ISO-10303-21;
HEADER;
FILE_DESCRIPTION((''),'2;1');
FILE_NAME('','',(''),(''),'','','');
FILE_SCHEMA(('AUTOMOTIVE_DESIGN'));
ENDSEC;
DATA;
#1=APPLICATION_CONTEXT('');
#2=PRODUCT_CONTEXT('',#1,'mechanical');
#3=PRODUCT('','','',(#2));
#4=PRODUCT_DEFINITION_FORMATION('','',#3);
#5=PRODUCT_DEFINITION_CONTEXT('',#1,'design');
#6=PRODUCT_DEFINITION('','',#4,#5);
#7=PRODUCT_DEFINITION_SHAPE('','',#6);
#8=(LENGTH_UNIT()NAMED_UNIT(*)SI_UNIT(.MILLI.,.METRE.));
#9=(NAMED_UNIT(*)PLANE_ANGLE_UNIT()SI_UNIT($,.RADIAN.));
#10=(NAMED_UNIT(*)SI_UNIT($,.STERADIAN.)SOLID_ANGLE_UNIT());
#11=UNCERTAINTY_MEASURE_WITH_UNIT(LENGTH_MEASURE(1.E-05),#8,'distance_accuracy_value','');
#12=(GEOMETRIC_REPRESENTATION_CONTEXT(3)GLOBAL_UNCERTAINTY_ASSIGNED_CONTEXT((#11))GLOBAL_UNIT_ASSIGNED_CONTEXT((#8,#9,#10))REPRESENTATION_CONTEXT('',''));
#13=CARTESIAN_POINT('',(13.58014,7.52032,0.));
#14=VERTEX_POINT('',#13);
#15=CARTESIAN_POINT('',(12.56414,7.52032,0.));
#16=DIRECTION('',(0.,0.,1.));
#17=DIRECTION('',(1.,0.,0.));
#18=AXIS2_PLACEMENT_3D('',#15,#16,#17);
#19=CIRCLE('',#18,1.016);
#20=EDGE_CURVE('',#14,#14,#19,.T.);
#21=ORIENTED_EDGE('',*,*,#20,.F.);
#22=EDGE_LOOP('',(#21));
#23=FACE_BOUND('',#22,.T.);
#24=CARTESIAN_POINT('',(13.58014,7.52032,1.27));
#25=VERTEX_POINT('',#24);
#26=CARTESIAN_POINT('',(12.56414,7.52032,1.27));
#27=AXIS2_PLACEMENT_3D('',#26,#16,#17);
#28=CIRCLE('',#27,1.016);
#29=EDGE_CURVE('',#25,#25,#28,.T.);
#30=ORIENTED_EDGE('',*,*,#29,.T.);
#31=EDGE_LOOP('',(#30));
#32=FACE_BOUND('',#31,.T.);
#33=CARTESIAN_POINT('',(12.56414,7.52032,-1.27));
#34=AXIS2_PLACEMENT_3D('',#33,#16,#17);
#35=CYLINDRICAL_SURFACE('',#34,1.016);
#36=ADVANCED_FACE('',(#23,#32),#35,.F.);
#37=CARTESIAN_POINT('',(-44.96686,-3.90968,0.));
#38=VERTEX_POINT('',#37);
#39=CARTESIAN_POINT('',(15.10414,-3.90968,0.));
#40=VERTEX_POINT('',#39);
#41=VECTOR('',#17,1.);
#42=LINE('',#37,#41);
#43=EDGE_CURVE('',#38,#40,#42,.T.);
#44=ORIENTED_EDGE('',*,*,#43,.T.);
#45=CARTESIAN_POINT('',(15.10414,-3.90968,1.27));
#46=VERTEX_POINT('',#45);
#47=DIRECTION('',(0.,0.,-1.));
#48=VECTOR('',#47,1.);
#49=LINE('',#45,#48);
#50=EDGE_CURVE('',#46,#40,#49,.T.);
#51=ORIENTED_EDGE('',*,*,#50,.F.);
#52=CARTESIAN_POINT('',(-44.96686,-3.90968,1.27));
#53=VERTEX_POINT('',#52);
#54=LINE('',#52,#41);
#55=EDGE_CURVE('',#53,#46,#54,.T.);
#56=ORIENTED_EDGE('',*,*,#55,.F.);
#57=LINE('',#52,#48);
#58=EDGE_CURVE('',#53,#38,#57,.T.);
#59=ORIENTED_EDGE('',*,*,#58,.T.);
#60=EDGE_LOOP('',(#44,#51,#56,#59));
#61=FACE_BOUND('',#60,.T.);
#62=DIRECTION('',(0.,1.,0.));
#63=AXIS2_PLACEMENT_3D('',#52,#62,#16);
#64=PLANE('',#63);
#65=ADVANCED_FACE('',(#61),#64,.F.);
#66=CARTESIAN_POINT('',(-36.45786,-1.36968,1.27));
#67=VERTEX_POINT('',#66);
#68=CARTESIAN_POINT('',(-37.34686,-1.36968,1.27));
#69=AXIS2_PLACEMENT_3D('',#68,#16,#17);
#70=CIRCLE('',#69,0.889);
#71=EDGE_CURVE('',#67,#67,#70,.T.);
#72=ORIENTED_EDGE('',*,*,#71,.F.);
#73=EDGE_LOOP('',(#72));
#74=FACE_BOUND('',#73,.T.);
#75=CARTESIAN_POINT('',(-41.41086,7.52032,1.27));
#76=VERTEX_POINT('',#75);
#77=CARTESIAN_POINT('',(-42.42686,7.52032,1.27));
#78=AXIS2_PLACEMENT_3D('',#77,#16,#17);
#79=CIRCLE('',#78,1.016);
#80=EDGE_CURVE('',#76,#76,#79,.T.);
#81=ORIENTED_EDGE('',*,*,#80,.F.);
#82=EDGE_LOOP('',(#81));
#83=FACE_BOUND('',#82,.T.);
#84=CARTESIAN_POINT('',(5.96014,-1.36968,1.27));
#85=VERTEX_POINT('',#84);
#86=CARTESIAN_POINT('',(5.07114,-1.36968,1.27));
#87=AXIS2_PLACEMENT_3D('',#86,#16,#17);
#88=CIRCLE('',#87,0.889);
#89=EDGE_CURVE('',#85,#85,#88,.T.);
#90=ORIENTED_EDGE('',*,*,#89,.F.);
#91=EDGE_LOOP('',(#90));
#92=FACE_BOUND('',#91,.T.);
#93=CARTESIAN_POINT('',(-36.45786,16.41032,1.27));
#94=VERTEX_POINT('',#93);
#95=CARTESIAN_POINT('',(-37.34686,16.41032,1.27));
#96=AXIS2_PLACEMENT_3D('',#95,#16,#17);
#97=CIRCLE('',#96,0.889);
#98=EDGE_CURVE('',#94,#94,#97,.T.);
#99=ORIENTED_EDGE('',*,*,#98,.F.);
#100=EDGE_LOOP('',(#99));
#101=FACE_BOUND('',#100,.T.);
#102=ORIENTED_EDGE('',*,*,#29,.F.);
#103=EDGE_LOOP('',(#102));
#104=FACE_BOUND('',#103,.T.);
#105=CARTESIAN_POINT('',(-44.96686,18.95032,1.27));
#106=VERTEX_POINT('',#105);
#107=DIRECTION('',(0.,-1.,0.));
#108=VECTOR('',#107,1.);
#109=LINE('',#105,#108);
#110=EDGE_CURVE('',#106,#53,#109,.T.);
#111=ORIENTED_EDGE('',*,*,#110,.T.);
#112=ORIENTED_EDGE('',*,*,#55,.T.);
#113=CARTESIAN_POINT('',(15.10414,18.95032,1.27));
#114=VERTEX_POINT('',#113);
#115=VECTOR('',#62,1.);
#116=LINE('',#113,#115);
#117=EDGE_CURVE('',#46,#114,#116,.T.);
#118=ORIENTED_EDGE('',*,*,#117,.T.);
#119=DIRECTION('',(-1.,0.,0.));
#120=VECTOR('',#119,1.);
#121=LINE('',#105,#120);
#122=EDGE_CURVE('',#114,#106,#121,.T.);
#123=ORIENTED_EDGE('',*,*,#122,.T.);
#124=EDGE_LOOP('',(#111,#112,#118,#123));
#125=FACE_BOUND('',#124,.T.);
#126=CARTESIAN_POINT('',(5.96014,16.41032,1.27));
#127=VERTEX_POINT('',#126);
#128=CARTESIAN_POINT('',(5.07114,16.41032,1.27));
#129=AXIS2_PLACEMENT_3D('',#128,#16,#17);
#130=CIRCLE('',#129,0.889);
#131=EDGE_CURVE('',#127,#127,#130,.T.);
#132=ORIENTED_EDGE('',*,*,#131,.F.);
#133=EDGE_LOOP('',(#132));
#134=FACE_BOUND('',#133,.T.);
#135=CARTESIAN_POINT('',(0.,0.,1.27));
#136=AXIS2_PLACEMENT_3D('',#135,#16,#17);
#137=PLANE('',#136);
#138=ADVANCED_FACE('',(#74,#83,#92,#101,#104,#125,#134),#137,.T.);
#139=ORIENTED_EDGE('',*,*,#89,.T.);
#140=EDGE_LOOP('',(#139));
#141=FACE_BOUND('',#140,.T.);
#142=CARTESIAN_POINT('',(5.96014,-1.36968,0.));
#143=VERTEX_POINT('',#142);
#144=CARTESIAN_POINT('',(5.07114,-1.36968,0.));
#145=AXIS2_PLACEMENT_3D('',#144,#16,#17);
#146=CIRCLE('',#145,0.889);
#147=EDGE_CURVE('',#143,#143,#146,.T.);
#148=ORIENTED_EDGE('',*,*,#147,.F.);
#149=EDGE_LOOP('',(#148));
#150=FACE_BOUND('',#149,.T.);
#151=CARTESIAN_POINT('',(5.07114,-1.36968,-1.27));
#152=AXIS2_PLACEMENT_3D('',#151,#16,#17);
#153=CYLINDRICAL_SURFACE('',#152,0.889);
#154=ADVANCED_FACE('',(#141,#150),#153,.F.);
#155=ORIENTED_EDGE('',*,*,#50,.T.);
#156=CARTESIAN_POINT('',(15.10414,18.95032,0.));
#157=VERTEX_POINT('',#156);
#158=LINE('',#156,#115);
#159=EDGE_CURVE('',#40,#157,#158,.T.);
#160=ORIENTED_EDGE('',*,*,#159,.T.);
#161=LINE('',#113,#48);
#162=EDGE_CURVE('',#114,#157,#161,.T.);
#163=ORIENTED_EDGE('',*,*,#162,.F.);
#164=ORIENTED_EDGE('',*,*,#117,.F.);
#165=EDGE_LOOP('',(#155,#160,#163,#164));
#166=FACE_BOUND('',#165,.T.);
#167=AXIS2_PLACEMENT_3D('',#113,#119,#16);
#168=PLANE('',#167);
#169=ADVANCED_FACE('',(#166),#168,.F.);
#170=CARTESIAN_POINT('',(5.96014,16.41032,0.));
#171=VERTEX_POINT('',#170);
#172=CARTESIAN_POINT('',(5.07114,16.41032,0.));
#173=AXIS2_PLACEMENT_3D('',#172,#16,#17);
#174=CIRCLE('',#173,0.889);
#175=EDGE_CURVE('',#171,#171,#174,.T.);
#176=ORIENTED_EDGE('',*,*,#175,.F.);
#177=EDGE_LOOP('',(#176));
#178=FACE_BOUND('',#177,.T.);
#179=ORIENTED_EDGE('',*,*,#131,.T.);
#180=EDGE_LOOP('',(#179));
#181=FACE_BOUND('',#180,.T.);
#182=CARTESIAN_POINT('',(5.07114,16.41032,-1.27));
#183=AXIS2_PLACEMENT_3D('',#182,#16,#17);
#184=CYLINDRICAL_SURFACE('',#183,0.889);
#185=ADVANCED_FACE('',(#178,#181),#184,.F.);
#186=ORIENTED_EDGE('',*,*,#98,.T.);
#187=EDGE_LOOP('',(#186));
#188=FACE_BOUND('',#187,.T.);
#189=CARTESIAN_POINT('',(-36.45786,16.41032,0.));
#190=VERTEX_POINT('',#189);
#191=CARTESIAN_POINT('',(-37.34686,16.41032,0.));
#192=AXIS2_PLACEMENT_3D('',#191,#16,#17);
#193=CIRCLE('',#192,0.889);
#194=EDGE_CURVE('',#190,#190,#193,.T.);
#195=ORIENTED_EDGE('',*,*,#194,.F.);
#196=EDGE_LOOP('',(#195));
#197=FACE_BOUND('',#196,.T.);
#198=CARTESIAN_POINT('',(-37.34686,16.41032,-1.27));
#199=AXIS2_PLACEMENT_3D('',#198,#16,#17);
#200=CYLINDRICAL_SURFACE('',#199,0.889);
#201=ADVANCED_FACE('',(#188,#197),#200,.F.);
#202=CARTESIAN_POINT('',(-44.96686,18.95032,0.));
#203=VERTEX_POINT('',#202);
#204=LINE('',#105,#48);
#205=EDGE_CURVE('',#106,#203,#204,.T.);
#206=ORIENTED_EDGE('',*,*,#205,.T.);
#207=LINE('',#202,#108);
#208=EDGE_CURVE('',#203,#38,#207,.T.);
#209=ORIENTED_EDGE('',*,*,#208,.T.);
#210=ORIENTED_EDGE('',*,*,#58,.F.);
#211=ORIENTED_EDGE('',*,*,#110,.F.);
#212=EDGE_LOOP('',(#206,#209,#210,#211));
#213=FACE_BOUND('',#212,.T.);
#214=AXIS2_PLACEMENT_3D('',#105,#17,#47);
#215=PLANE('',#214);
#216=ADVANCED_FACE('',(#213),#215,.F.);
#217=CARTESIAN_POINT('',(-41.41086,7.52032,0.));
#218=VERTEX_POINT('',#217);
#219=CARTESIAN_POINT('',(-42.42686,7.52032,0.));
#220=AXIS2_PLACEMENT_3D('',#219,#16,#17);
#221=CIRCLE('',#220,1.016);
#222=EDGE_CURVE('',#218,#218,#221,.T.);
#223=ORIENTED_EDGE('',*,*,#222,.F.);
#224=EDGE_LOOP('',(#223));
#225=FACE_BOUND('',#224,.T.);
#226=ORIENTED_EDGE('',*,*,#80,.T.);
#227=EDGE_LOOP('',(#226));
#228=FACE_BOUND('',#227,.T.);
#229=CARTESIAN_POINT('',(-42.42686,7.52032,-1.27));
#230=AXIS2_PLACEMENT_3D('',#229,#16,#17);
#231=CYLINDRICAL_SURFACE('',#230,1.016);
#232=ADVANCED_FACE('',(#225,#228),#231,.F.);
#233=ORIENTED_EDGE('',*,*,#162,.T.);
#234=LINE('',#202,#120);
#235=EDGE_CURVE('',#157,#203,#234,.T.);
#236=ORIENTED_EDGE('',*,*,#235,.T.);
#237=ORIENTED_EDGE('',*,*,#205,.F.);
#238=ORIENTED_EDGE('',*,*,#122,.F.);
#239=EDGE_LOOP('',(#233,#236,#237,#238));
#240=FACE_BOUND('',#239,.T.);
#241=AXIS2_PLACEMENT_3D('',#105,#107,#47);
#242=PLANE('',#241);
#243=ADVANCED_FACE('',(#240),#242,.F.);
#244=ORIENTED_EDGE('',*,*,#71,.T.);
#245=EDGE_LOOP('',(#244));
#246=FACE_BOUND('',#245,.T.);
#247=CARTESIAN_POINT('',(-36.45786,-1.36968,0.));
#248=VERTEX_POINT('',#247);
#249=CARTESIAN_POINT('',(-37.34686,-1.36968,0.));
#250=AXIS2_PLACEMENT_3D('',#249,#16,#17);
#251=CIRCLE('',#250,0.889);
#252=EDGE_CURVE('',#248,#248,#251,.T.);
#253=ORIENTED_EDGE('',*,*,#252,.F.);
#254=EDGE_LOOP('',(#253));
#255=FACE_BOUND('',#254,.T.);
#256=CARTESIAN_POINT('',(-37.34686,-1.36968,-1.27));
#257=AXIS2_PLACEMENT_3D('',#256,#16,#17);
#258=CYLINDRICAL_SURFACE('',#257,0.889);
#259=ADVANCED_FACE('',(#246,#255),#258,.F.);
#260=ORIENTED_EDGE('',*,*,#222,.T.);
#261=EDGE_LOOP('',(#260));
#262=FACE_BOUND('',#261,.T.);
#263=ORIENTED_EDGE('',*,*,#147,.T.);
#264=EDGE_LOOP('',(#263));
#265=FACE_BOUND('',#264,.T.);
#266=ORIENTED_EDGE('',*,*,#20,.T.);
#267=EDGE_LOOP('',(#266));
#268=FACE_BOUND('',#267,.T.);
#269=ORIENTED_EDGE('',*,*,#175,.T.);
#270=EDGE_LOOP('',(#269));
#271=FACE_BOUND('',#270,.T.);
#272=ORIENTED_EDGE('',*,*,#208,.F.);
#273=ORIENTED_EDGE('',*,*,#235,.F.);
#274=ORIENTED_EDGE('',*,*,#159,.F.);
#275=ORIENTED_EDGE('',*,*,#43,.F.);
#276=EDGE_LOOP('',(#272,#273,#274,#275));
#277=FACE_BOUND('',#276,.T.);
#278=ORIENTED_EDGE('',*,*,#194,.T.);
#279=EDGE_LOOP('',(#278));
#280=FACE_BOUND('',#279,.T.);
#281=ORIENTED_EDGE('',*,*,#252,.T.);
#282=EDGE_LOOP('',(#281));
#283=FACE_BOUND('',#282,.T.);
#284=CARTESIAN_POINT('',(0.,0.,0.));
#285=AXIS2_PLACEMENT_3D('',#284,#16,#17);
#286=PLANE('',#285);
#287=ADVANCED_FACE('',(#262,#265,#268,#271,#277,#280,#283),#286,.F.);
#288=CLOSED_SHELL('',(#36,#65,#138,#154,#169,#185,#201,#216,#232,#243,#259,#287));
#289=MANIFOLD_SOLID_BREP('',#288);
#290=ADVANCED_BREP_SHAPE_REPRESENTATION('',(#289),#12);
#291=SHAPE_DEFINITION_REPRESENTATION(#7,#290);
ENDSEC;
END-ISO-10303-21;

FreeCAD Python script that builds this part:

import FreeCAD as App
import Part
import Sketcher

V = App.Vector
Q = App.Units.Quantity

doc = App.newDocument("Part")
params = doc.addObject("Spreadsheet::Sheet", "Params")
for row, (alias, value) in enumerate([
    ("sketch1_height", "0.9 in"),
    ("sketch1_width", "2.365 in"),
    ("pad1_length", "0.05 in"),
    ("sketch2_diameter", "0.07 in"),
    ("sketch2_diameter2", "0.08 in"),
    ("pocket1_length", "0.1 in"),
], start=1):
    params.set(f"A{row}", alias)
    params.set(f"B{row}", "=" + value)
    params.setAlias(f"B{row}", alias)

body = doc.addObject("PartDesign::Body", "Body")

sketch1 = body.newObject("Sketcher::SketchObject", "Sketch")
sketch1.AttachmentSupport = (doc.getObject("XY_Plane"), [""])
sketch1.MapMode = "FlatFace"
sketch1.addGeometry(Part.LineSegment(V(-45, 19, 0), V(-45, -4, 0)), False)
sketch1.addGeometry(Part.LineSegment(V(-45, -4, 0), V(15, -4, 0)), False)
sketch1.addGeometry(Part.LineSegment(V(15, -4, 0), V(15, 19, 0)), False)
sketch1.addGeometry(Part.LineSegment(V(15, 19, 0), V(-45, 19, 0)), False)
sketch1.addConstraint(Sketcher.Constraint("Coincident", 0, 2, 1, 1))
sketch1.addConstraint(Sketcher.Constraint("Coincident", 1, 2, 2, 1))
sketch1.addConstraint(Sketcher.Constraint("Coincident", 2, 2, 3, 1))
sketch1.addConstraint(Sketcher.Constraint("Coincident", 3, 2, 0, 1))
sketch1.addConstraint(Sketcher.Constraint("Vertical", 0))
sketch1.addConstraint(Sketcher.Constraint("Horizontal", 1))
sketch1.addConstraint(Sketcher.Constraint("Vertical", 2))
sketch1.addConstraint(Sketcher.Constraint("Horizontal", 3))
sketch1.addConstraint(Sketcher.Constraint("DistanceY", 0, 2, 0, 1, Q("0.9 in")))
sketch1.addConstraint(Sketcher.Constraint("DistanceX", 1, 1, 1, 2, Q("2.365 in")))
sketch1.addConstraint(Sketcher.Constraint("DistanceX", 0, 2, -1, 1, Q("44.96686 mm")))
sketch1.addConstraint(Sketcher.Constraint("DistanceY", 0, 2, -1, 1, Q("3.90968 mm")))
sketch1.setExpression("Constraints[8]", "Params.sketch1_height")
sketch1.setExpression("Constraints[9]", "Params.sketch1_width")
pad1 = body.newObject("PartDesign::Pad", "Pad")
pad1.Profile = sketch1
pad1.setExpression("Length", "Params.pad1_length")

sketch2 = body.newObject("Sketcher::SketchObject", "Sketch001")
sketch2.AttachmentSupport = (doc.getObject("XY_Plane"), [""])
sketch2.MapMode = "FlatFace"
sketch2.AttachmentOffset = App.Placement(V(0, 0, 0.05 * 25.4), App.Rotation())
sketch2.addGeometry(Part.Circle(V(-37.3, 16.4, 0), V(0, 0, 1), 0.9), False)
sketch2.addGeometry(Part.Circle(V(5.1, 16.4, 0), V(0, 0, 1), 0.9), False)
sketch2.addGeometry(Part.Circle(V(-37.3, -1.4, 0), V(0, 0, 1), 0.9), False)
sketch2.addGeometry(Part.Circle(V(5.1, -1.4, 0), V(0, 0, 1), 0.9), False)
sketch2.addGeometry(Part.Circle(V(-42.4, 7.5, 0), V(0, 0, 1), 1), False)
sketch2.addGeometry(Part.Circle(V(12.6, 7.5, 0), V(0, 0, 1), 1), False)
sketch2.addConstraint(Sketcher.Constraint("Equal", 0, 1))
sketch2.addConstraint(Sketcher.Constraint("Equal", 1, 2))
sketch2.addConstraint(Sketcher.Constraint("Equal", 2, 3))
sketch2.addConstraint(Sketcher.Constraint("Equal", 4, 5))
sketch2.addConstraint(Sketcher.Constraint("Horizontal", 0, 3, 1, 3))
sketch2.addConstraint(Sketcher.Constraint("Horizontal", 2, 3, 3, 3))
sketch2.addConstraint(Sketcher.Constraint("Horizontal", 4, 3, 5, 3))
sketch2.addConstraint(Sketcher.Constraint("Vertical", 0, 3, 2, 3))
sketch2.addConstraint(Sketcher.Constraint("Vertical", 1, 3, 3, 3))
sketch2.addConstraint(Sketcher.Constraint("Diameter", 0, Q("0.07 in")))
sketch2.addConstraint(Sketcher.Constraint("Diameter", 4, Q("0.08 in")))
sketch2.addConstraint(Sketcher.Constraint("DistanceY", 2, 3, 0, 3, Q("0.7 in")))
sketch2.addConstraint(Sketcher.Constraint("DistanceX", 4, 3, 0, 3, Q("0.2 in")))
sketch2.addConstraint(Sketcher.Constraint("DistanceX", 0, 3, 1, 3, Q("1.67 in")))
sketch2.addConstraint(Sketcher.Constraint("DistanceY", 4, 3, 0, 3, Q("0.35 in")))
sketch2.addConstraint(Sketcher.Constraint("DistanceX", 1, 3, 5, 3, Q("0.295 in")))
sketch2.addConstraint(Sketcher.Constraint("DistanceX", 0, 3, -1, 1, Q("37.34686 mm")))
sketch2.addConstraint(Sketcher.Constraint("DistanceY", -1, 1, 0, 3, Q("16.41032 mm")))
sketch2.setExpression("Constraints[9]", "Params.sketch2_diameter")
sketch2.setExpression("Constraints[10]", "Params.sketch2_diameter2")
pocket1 = body.newObject("PartDesign::Pocket", "Pocket")
pocket1.Profile = sketch2
pocket1.setExpression("Length", "Params.pocket1_length")

doc.recompute()
